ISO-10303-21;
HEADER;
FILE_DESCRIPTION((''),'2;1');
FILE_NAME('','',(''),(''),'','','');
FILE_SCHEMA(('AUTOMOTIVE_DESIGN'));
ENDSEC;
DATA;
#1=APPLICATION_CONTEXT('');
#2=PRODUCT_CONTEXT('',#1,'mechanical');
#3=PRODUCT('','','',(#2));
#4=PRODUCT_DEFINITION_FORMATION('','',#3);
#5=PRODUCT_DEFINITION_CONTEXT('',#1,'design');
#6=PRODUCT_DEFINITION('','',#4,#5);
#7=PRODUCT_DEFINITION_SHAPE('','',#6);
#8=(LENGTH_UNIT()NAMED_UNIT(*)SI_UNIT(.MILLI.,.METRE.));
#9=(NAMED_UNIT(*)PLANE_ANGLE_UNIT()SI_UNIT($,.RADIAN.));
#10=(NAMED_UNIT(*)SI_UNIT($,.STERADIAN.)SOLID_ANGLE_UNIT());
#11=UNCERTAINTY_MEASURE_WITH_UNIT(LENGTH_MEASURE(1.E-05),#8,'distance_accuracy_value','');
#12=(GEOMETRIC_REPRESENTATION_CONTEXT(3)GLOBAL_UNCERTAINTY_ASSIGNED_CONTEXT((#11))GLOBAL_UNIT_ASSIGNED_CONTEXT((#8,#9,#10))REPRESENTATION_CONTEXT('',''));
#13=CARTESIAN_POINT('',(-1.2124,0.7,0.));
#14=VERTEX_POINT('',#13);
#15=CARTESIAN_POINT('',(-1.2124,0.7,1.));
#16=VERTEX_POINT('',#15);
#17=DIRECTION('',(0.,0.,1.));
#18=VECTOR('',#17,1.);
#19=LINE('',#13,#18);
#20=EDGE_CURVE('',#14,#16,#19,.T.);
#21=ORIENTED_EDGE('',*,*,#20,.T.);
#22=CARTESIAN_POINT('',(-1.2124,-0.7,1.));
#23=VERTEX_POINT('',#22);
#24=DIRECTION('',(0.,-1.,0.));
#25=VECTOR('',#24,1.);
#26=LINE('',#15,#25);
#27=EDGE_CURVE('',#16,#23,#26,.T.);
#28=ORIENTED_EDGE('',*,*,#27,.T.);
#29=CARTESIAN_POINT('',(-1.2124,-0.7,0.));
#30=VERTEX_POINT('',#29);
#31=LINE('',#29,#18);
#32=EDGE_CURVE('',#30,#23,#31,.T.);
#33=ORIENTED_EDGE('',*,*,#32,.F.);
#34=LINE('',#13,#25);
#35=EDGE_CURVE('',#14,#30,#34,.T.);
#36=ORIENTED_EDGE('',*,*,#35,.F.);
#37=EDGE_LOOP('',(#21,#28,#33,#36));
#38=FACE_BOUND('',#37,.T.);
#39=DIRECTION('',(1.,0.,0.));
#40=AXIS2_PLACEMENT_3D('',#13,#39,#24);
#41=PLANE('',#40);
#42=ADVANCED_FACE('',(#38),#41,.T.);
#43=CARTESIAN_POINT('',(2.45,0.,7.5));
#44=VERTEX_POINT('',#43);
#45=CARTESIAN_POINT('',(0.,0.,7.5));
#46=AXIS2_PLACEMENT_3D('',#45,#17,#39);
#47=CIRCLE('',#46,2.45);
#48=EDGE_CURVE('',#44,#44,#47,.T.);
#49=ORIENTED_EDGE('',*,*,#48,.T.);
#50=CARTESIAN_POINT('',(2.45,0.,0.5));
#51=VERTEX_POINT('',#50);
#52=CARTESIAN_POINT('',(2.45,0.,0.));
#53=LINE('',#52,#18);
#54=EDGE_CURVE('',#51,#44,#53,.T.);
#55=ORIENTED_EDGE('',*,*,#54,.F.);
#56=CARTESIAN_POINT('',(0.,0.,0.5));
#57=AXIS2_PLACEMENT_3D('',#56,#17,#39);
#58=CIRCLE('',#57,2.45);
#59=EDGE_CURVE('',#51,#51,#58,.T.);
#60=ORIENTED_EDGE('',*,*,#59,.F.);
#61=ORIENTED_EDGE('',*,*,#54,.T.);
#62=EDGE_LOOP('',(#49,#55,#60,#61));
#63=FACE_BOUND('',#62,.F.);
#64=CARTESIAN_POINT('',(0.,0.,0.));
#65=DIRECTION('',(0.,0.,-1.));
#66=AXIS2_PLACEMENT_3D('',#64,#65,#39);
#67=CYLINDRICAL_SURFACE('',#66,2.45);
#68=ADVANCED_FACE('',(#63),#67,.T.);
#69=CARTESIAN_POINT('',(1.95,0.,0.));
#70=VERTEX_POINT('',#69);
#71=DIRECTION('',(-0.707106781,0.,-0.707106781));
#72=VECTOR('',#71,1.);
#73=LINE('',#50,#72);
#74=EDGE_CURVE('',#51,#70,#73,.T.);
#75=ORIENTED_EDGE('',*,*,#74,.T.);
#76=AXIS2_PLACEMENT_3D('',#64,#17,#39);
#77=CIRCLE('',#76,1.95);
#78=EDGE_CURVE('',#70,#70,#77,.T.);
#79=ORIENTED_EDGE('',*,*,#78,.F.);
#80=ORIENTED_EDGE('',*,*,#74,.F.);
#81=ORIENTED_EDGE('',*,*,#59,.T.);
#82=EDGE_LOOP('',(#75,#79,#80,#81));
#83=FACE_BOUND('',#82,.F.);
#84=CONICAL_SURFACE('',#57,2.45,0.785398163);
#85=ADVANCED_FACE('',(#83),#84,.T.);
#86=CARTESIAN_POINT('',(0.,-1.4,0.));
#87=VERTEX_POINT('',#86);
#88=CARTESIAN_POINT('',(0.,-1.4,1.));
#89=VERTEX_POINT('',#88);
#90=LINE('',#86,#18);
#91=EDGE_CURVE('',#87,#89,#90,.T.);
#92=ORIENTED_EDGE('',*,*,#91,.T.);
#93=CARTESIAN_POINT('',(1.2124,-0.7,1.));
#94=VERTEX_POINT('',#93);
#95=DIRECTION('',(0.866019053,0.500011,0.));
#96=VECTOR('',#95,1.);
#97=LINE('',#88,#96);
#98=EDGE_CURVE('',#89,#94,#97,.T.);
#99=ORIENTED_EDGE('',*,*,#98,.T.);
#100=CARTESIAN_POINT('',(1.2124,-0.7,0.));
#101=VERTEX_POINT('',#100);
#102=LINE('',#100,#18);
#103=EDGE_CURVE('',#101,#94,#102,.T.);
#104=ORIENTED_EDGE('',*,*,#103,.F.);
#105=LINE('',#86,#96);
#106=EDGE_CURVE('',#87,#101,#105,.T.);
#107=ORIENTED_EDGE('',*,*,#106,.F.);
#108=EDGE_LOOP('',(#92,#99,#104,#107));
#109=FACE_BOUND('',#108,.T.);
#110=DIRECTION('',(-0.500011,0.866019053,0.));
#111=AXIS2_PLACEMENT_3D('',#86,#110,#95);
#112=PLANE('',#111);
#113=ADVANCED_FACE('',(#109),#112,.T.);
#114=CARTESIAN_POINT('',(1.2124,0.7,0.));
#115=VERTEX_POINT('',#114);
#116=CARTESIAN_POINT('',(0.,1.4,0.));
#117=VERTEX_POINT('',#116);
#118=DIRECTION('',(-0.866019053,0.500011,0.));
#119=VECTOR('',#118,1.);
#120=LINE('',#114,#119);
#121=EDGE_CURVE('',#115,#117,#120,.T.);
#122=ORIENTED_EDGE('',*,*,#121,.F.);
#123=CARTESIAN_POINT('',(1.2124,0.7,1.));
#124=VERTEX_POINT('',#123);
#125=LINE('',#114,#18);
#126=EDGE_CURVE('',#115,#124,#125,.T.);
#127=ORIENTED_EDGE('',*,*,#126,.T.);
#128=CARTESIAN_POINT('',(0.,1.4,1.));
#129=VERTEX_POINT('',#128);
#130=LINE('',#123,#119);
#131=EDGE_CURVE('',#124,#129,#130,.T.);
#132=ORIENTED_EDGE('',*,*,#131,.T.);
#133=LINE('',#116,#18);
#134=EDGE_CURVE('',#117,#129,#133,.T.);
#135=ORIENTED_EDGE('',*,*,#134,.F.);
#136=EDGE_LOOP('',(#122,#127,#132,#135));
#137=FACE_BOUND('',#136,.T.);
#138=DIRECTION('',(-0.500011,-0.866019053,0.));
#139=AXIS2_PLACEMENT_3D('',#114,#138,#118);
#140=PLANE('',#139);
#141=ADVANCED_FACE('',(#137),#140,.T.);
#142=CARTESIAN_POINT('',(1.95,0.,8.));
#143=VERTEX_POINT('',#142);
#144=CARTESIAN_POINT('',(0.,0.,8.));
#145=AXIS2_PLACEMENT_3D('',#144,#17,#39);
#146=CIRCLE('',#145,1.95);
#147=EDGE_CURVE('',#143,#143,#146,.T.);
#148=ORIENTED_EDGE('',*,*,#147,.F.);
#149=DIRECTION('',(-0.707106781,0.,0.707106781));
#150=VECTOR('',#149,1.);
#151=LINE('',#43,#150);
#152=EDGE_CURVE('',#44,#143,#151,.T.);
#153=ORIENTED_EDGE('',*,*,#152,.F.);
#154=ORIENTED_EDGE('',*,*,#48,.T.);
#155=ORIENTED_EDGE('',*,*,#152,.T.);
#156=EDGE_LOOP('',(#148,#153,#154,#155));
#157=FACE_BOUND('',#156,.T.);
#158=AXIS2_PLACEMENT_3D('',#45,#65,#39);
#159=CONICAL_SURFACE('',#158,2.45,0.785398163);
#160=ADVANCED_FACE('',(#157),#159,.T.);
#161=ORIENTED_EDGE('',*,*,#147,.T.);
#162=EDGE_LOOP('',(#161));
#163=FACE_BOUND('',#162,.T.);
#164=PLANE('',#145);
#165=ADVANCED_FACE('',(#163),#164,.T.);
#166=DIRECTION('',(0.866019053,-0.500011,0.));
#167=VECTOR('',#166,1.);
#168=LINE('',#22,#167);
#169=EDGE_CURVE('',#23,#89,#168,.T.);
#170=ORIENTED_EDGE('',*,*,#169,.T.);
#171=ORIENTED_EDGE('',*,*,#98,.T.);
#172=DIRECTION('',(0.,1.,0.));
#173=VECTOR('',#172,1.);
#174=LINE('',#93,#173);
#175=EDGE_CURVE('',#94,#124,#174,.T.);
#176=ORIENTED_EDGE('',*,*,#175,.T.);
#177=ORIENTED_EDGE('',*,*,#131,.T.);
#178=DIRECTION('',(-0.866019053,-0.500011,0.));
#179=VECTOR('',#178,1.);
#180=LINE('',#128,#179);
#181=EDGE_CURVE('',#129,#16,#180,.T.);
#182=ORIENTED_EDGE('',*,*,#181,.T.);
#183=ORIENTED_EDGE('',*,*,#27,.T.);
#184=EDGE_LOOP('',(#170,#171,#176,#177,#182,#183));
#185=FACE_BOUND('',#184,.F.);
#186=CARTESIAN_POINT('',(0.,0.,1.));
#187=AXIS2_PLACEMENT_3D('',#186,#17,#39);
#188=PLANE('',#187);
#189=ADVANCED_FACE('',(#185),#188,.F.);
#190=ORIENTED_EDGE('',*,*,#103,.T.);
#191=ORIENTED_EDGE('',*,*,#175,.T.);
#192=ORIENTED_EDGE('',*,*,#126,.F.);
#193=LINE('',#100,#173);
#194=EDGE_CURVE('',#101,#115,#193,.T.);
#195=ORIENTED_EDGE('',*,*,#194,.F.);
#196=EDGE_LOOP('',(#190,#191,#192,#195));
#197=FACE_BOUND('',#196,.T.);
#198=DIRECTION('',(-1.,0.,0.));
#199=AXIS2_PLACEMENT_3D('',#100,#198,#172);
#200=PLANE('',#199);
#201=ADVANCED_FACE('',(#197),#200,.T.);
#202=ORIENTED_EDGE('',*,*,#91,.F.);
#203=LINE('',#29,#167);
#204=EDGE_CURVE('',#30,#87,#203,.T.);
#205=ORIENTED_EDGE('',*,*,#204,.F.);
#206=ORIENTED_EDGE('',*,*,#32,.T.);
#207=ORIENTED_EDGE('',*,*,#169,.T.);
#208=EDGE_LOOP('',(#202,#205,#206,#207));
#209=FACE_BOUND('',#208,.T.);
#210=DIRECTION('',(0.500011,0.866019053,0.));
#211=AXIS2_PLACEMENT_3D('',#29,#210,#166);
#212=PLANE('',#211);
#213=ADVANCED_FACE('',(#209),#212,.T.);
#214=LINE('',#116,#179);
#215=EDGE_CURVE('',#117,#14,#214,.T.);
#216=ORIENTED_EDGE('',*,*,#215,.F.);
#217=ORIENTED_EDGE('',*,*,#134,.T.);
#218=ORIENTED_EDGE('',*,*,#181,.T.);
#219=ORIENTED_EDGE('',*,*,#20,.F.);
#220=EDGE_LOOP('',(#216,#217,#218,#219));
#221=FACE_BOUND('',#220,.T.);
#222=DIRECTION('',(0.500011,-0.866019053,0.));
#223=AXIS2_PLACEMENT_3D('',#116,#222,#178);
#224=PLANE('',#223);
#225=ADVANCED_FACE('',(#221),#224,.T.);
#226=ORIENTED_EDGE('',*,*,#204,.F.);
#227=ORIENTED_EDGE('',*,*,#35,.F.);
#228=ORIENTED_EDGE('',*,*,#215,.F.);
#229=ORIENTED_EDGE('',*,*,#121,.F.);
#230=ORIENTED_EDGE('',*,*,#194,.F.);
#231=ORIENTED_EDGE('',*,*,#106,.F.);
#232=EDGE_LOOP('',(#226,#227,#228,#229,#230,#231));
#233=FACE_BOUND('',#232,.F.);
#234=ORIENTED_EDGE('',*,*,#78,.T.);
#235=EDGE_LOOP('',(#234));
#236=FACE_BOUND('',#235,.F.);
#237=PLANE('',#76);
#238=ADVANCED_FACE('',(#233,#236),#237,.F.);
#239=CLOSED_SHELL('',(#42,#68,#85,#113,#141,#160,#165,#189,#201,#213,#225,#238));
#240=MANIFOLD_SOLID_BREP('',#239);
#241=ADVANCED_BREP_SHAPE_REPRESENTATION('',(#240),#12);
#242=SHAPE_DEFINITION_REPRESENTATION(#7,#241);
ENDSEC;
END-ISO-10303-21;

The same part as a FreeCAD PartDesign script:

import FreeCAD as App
import Part
import Sketcher
Q = App.Units.Quantity


def edges_at(feature, points):
    """Names of the edges that pass closest to the given points."""
    edges = feature.Shape.Edges
    near = lambda p: min(range(len(edges)), key=lambda i: edges[i].distToShape(Part.Vertex(*p))[0])
    return sorted({f"Edge{near(p) + 1}" for p in points})

doc = App.newDocument("Part")
body = doc.addObject("PartDesign::Body", "Body")

# Sketch on XY plane
sketch1 = body.newObject("Sketcher::SketchObject", "Sketch")
sketch1.AttachmentSupport = (doc.getObject("XY_Plane"), [""])
sketch1.MapMode = "FlatFace"
sketch1.addGeometry(Part.Circle(App.Vector(0, 0, 0), App.Vector(0, 0, 1), 2.5), False)
sketch1.addConstraint(Sketcher.Constraint("Coincident", 0, 3, -1, 1))
sketch1.addConstraint(Sketcher.Constraint("Diameter", 0, 4.9))
pad1 = body.newObject("PartDesign::Pad", "Pad")
pad1.Profile = sketch1
pad1.Length = 8
doc.recompute()

chamfer = body.newObject("PartDesign::Chamfer", "Chamfer")
chamfer.Base = (pad1, edges_at(pad1, [(-2.45, 0, 8), (-2.45, 0, 0)]))
chamfer.Size = 0.5

# Sketch on XY plane
sketch2 = body.newObject("Sketcher::SketchObject", "Sketch001")
sketch2.AttachmentSupport = (doc.getObject("XY_Plane"), [""])
sketch2.MapMode = "FlatFace"
sketch2.addGeometry(Part.LineSegment(App.Vector(1.2, -0.7, 0), App.Vector(0, -1.4, 0)), False)
sketch2.addGeometry(Part.LineSegment(App.Vector(0, -1.4, 0), App.Vector(-1.2, -0.7, 0)), False)
sketch2.addGeometry(Part.LineSegment(App.Vector(-1.2, -0.7, 0), App.Vector(-1.2, 0.7, 0)), False)
sketch2.addGeometry(Part.LineSegment(App.Vector(-1.2, 0.7, 0), App.Vector(0, 1.4, 0)), False)
sketch2.addGeometry(Part.LineSegment(App.Vector(0, 1.4, 0), App.Vector(1.2, 0.7, 0)), False)
sketch2.addGeometry(Part.LineSegment(App.Vector(1.2, 0.7, 0), App.Vector(1.2, -0.7, 0)), False)
sketch2.addConstraint(Sketcher.Constraint("Coincident", 0, 2, 1, 1))
sketch2.addConstraint(Sketcher.Constraint("Coincident", 1, 2, 2, 1))
sketch2.addConstraint(Sketcher.Constraint("Coincident", 2, 2, 3, 1))
sketch2.addConstraint(Sketcher.Constraint("Coincident", 3, 2, 4, 1))
sketch2.addConstraint(Sketcher.Constraint("Coincident", 4, 2, 5, 1))
sketch2.addConstraint(Sketcher.Constraint("Coincident", 5, 2, 0, 1))
sketch2.addConstraint(Sketcher.Constraint("Vertical", 2))
sketch2.addConstraint(Sketcher.Constraint("Vertical", 5))
sketch2.addConstraint(Sketcher.Constraint("Symmetric", 0, 2, 3, 2, -1, 1))
sketch2.addConstraint(Sketcher.Constraint("Symmetric", 1, 2, 4, 2, -1, 1))
sketch2.addConstraint(Sketcher.Constraint("PointOnObject", 0, 2, -2))
sketch2.addConstraint(Sketcher.Constraint("Parallel", 0, 3))
sketch2.addConstraint(Sketcher.Constraint("Horizontal", 2, 2, 4, 2))
sketch2.addConstraint(Sketcher.Constraint("Angle", 0, Q("-149.9993 deg")))
sketch2.addConstraint(Sketcher.Constraint("DistanceY", 2, 1, 2, 2, 1.4))
sketch2.addConstraint(Sketcher.Constraint("Distance", 0, 1.4))
pocket1 = body.newObject("PartDesign::Pocket", "Pocket")
pocket1.Profile = sketch2
pocket1.Length = 1
pocket1.Reversed = True

doc.recompute()
